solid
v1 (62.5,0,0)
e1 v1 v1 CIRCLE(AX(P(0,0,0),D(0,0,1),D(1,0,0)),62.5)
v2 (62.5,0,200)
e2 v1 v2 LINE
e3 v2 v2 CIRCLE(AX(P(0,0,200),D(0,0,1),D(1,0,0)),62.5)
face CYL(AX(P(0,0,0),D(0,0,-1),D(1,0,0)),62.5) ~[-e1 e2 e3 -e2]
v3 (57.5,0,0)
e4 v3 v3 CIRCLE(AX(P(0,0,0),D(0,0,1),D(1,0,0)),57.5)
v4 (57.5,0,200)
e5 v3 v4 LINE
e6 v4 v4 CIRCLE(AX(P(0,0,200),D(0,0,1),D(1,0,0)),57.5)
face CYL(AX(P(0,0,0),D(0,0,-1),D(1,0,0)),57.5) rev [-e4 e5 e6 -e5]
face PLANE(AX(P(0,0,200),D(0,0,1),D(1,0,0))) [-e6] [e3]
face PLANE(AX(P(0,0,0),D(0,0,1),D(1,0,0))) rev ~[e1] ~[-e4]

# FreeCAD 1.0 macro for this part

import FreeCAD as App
import Part
import Sketcher

V = App.Vector
Q = App.Units.Quantity

doc = App.newDocument("Part")
body = doc.addObject("PartDesign::Body", "Body")

# Sketch on XY plane
sketch1 = body.newObject("Sketcher::SketchObject", "Sketch")
sketch1.AttachmentSupport = (doc.getObject("XY_Plane"), [""])
sketch1.MapMode = "FlatFace"
sketch1.addGeometry([
    Part.Circle(V(0, 0, 0), V(0, 0, 1), 62.5),
    Part.Circle(V(0, 0, 0), V(0, 0, 1), 57.5),
], False)
sketch1.addConstraint([
    Sketcher.Constraint("Coincident", 0, 3, -1, 1),
    Sketcher.Constraint("Coincident", 1, 3, -1, 1),
    Sketcher.Constraint("Diameter", 0, Q("125 mm")),
    Sketcher.Constraint("Diameter", 1, Q("115 mm")),
])
pad1 = body.newObject("PartDesign::Pad", "Pad")
pad1.Profile = sketch1
pad1.Length = 200

doc.recompute()
